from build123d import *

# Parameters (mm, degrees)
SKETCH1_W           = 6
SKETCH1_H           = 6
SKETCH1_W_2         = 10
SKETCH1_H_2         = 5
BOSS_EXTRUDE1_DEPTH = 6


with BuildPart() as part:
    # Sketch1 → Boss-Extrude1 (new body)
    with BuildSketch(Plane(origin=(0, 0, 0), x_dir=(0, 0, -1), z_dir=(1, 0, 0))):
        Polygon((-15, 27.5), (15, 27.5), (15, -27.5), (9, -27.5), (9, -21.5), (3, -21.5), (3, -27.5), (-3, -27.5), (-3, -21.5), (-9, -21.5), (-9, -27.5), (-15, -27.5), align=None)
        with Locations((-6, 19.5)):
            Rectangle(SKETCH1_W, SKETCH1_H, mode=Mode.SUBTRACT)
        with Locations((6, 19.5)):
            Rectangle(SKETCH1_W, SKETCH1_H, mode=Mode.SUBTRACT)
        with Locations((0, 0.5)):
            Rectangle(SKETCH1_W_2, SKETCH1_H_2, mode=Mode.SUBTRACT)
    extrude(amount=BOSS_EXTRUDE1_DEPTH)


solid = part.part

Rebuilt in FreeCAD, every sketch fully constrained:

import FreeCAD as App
import Part
import Sketcher
from FreeCAD import Vector
Q = App.Units.Quantity


def add_polygon(sketch, points):
    """Adds a closed chain of lines whose ends are joined by coincident constraints."""
    first, n = sketch.GeometryCount, len(points)
    for a, b in zip(points, points[1:] + points[:1]):
        sketch.addGeometry(Part.LineSegment(App.Vector(*a, 0), App.Vector(*b, 0)), False)
    for i in range(n):
        sketch.addConstraint(Sketcher.Constraint("Coincident", first + i, 2, first + (i + 1) % n, 1))

doc = App.newDocument("Part")
params = doc.addObject("Spreadsheet::Sheet", "Params")
for row, (alias, value) in enumerate([
    ("sketch1_width", "55 mm"),
    ("sketch1_width2", "6 mm"),
    ("sketch1_width3", "5 mm"),
    ("sketch1_height", "10 mm"),
    ("pad1_length", "6 mm"),
], start=1):
    params.set(f"A{row}", alias)
    params.set(f"B{row}", "=" + value)
    params.setAlias(f"B{row}", alias)

body = doc.addObject("PartDesign::Body", "Body")

# Sketch on YZ plane
sketch1 = body.newObject("Sketcher::SketchObject", "Sketch")
sketch1.AttachmentSupport = (doc.getObject("YZ_Plane"), [""])
sketch1.MapMode = "FlatFace"
add_polygon(sketch1, [(27.5, -15), (27.5, 15), (-27.5, 15), (-27.5, 9), (-21.5, 9), (-21.5, 3), (-27.5, 3), (-27.5, -3), (-21.5, -3), (-21.5, -9), (-27.5, -9), (-27.5, -15)])  # lines 0-11
add_polygon(sketch1, [(-2, 5), (3, 5), (3, -5), (-2, -5)])  # lines 12-15
add_polygon(sketch1, [(16.5, -3), (22.5, -3), (22.5, -9), (16.5, -9)])  # lines 16-19
add_polygon(sketch1, [(16.5, 9), (22.5, 9), (22.5, 3), (16.5, 3)])  # lines 20-23
sketch1.addConstraint([
    Sketcher.Constraint("Vertical", 0),
    Sketcher.Constraint("Horizontal", 1),
    Sketcher.Constraint("Vertical", 2),
    Sketcher.Constraint("Horizontal", 3),
    Sketcher.Constraint("Vertical", 4),
    Sketcher.Constraint("Horizontal", 5),
    Sketcher.Constraint("Vertical", 6),
    Sketcher.Constraint("Horizontal", 7),
    Sketcher.Constraint("Vertical", 8),
    Sketcher.Constraint("Horizontal", 9),
    Sketcher.Constraint("Vertical", 10),
    Sketcher.Constraint("Horizontal", 11),
    Sketcher.Constraint("Horizontal", 12),
    Sketcher.Constraint("Vertical", 13),
    Sketcher.Constraint("Horizontal", 14),
    Sketcher.Constraint("Vertical", 15),
    Sketcher.Constraint("Horizontal", 16),
    Sketcher.Constraint("Vertical", 17),
    Sketcher.Constraint("Horizontal", 18),
    Sketcher.Constraint("Vertical", 19),
    Sketcher.Constraint("Horizontal", 20),
    Sketcher.Constraint("Vertical", 21),
    Sketcher.Constraint("Horizontal", 22),
    Sketcher.Constraint("Vertical", 23),
    Sketcher.Constraint("Symmetric", 0, 2, 10, 2, -1, 1),
    Sketcher.Constraint("Symmetric", 4, 2, 7, 2, -1),
    Sketcher.Constraint("Symmetric", 2, 2, 9, 2, -1),
    Sketcher.Constraint("Symmetric", 17, 2, 20, 2, -1),
    Sketcher.Constraint("Symmetric", 19, 2, 22, 2, -1),
    Sketcher.Constraint("Horizontal", 7, 2, 16, 2),
    Sketcher.Constraint("Horizontal", 9, 2, 17, 2),
    Sketcher.Constraint("Vertical", 2, 2, 5, 2),
    Sketcher.Constraint("Equal", 9, 16),
    Sketcher.Constraint("Equal", 22, 2),
    Sketcher.Constraint("Equal", 2, 4),
    Sketcher.Constraint("Equal", 4, 6),
    Sketcher.Constraint("DistanceX", 1, 2, 1, 1, Q("55 mm")),
    Sketcher.Constraint("DistanceX", 3, 1, 3, 2, Q("6 mm")),
    Sketcher.Constraint("DistanceX", 12, 1, 12, 2, Q("5 mm")),
    Sketcher.Constraint("DistanceY", 13, 2, 13, 1, Q("10 mm")),
    Sketcher.Constraint("DistanceX", -1, 1, 12, 2, Q("3 mm")),
    Sketcher.Constraint("DistanceY", -1, 1, 12, 2, Q("5 mm")),
    Sketcher.Constraint("DistanceX", 16, 2, 11, 2, Q("5 mm")),
])
sketch1.setExpression("Constraints[60]", "Params.sketch1_width")
sketch1.setExpression("Constraints[61]", "Params.sketch1_width2")
sketch1.setExpression("Constraints[62]", "Params.sketch1_width3")
sketch1.setExpression("Constraints[63]", "Params.sketch1_height")
pad1 = body.newObject("PartDesign::Pad", "Pad")
pad1.Profile = sketch1
pad1.setExpression("Length", "Params.pad1_length")

doc.recompute()
